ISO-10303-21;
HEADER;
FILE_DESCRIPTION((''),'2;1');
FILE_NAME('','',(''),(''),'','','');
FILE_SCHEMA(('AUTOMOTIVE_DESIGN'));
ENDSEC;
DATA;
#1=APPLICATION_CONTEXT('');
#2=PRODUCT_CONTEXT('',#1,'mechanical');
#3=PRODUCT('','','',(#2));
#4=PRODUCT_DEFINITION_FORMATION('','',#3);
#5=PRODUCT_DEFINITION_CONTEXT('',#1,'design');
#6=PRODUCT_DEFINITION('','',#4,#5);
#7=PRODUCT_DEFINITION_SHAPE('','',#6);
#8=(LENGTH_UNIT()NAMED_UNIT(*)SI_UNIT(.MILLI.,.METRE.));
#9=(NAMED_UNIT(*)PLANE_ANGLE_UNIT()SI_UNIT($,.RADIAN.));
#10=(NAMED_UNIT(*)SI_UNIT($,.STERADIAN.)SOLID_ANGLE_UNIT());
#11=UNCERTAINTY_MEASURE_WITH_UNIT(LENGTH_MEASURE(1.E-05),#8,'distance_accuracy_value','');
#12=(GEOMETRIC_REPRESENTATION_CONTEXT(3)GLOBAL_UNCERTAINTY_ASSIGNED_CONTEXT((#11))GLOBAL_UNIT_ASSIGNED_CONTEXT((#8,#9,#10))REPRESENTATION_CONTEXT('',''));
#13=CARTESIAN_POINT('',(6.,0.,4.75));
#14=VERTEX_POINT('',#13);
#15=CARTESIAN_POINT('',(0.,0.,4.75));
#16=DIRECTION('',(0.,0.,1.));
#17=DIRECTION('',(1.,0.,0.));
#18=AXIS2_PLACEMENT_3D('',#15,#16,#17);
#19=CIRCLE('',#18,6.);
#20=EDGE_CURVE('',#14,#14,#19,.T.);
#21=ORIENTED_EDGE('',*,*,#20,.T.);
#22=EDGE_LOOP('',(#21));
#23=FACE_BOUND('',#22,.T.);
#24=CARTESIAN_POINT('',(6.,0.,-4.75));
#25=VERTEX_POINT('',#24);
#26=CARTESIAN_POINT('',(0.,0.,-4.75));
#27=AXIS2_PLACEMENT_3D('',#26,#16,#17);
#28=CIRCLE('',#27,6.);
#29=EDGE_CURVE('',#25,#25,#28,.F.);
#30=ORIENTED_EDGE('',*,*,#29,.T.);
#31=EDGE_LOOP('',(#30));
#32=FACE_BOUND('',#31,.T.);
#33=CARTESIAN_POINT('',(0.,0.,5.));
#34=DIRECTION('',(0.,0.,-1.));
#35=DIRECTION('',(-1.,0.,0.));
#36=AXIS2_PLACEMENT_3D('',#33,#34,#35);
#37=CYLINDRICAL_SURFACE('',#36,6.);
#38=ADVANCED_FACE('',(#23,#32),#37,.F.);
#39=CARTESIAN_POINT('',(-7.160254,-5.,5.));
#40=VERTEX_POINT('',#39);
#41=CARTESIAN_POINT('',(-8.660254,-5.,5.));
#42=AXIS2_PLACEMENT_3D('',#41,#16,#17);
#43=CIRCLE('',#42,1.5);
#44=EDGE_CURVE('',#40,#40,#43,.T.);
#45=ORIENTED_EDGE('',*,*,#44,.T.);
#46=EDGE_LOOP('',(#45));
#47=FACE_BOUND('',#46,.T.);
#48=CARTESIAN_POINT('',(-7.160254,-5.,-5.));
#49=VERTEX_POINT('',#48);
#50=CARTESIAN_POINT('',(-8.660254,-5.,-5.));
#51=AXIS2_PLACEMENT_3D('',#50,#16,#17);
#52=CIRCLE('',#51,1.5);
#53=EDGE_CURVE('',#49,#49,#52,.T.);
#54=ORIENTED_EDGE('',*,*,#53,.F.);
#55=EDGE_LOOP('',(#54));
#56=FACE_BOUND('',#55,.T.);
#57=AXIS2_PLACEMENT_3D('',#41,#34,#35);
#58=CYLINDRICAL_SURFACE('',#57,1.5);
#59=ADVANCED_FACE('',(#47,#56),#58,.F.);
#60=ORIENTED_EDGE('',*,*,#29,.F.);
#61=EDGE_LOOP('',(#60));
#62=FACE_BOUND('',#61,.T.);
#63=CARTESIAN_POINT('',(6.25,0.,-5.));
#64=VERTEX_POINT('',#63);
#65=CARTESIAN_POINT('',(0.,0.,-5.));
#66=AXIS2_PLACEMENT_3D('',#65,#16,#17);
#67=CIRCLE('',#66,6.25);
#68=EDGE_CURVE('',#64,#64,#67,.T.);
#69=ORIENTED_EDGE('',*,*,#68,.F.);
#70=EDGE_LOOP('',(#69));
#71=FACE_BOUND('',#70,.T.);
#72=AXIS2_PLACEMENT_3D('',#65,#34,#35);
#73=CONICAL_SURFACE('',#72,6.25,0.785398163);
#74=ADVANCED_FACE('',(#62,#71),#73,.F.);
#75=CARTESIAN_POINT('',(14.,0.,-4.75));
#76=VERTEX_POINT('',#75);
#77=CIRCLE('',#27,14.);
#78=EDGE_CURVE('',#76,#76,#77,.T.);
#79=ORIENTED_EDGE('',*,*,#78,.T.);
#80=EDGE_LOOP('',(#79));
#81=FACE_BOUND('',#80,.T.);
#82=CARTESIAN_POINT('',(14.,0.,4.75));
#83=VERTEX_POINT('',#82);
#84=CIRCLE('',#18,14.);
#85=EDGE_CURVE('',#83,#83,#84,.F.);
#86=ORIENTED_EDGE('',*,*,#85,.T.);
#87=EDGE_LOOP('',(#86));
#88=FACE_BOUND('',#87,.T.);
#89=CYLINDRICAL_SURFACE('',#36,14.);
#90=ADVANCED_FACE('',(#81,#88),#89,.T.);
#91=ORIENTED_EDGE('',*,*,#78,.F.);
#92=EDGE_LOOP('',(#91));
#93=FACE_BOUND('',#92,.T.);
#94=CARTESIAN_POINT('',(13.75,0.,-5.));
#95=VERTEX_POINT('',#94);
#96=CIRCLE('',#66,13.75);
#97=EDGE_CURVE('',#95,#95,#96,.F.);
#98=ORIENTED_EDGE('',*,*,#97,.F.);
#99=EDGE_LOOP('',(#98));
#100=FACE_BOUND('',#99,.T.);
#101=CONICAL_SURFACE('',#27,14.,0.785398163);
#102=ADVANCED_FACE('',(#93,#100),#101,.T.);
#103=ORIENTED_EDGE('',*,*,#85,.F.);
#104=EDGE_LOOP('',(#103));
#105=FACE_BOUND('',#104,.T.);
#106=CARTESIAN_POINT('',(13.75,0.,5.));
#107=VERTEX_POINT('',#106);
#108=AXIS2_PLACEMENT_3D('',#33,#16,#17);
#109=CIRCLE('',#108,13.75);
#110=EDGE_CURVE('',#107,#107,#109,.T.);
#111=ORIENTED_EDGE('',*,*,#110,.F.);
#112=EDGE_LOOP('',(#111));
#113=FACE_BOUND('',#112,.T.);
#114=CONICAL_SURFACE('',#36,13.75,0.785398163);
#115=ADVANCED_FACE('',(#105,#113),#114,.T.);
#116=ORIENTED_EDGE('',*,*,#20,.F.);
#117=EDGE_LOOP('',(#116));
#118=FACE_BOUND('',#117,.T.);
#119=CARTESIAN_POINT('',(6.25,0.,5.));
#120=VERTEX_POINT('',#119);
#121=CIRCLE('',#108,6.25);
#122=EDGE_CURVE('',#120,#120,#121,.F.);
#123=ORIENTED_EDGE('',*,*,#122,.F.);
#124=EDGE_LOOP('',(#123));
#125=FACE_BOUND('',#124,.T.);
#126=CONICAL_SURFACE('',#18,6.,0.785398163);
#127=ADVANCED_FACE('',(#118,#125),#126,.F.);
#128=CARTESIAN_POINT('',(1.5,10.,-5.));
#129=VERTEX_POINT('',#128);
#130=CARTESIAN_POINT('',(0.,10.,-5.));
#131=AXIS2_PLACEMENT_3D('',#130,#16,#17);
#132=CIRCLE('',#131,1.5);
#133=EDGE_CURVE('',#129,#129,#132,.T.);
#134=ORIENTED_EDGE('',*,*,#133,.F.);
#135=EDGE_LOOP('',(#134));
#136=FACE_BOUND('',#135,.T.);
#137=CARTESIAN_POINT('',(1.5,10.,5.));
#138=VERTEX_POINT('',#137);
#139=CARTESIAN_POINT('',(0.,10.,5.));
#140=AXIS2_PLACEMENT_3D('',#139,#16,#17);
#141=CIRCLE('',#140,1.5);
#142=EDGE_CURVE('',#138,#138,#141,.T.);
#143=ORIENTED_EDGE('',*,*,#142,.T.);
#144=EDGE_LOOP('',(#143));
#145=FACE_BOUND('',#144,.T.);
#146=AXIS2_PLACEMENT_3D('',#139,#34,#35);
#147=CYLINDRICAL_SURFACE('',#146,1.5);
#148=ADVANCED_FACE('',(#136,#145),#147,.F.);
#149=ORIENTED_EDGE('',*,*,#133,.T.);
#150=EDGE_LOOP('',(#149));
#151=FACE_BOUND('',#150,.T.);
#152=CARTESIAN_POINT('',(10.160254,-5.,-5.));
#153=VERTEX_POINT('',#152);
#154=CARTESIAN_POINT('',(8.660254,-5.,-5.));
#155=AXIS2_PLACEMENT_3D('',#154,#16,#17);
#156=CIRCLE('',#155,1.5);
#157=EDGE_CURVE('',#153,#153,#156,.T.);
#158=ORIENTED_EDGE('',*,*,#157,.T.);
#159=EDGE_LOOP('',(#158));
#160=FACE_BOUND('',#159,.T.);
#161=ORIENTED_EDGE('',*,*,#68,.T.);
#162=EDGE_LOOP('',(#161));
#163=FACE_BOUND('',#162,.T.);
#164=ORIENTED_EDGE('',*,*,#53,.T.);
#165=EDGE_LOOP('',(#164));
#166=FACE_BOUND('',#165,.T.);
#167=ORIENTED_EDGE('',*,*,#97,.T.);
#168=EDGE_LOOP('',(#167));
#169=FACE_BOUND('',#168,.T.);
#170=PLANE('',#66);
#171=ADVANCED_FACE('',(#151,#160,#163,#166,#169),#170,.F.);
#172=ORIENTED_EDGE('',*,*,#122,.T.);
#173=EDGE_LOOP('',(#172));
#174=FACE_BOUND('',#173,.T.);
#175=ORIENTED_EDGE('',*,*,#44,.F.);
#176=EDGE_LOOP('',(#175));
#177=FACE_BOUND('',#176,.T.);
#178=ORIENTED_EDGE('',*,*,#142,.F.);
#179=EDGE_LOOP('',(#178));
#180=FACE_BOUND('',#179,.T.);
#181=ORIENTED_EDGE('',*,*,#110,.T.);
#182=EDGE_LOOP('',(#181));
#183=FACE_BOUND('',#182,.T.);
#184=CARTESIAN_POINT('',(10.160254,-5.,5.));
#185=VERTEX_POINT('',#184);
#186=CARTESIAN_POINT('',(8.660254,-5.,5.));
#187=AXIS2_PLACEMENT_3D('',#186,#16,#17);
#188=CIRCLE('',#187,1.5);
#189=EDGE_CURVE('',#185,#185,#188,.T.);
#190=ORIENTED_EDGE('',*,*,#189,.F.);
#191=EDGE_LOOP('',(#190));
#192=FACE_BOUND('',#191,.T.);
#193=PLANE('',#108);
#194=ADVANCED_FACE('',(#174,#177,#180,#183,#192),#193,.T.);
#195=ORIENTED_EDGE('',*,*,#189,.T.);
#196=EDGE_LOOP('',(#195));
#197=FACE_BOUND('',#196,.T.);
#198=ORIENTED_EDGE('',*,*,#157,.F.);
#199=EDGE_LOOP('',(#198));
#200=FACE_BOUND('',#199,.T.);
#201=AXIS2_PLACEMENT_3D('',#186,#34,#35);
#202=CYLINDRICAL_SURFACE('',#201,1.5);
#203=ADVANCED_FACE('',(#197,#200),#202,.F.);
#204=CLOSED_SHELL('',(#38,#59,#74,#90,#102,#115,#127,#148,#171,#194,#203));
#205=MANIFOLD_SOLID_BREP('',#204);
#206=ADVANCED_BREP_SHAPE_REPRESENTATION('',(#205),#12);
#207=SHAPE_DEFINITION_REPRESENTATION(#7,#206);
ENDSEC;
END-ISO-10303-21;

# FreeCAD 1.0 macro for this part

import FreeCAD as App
import Part
import Sketcher

V = App.Vector
Q = App.Units.Quantity


def edges_at(feature, points):
    """Names of the edges that pass closest to the given points."""
    edges = feature.Shape.Edges
    near = lambda p: min(range(len(edges)), key=lambda i: edges[i].distToShape(Part.Vertex(*p))[0])
    return sorted({f"Edge{near(p) + 1}" for p in points})

doc = App.newDocument("Part")
body = doc.addObject("PartDesign::Body", "Body")

# Sketch on XY plane
sketch1 = body.newObject("Sketcher::SketchObject", "Sketch")
sketch1.AttachmentSupport = (doc.getObject("XY_Plane"), [""])
sketch1.MapMode = "FlatFace"
sketch1.addGeometry([
    Part.Circle(V(0, 0, 0), V(0, 0, 1), 14),  # 0
    Part.Circle(V(-8.660254, -5, 0), V(0, 0, 1), 1.5),  # 1
    Part.Circle(V(8.660254, -5, 0), V(0, 0, 1), 1.5),  # 2
    Part.Circle(V(0, 0, 0), V(0, 0, 1), 6),  # 3
    Part.Circle(V(0, 10, 0), V(0, 0, 1), 1.5),  # 4
], False)
sketch1.addConstraint([
    Sketcher.Constraint("Coincident", 0, 3, -1, 1),
    Sketcher.Constraint("Coincident", 3, 3, -1, 1),
    Sketcher.Constraint("Equal", 1, 2),
    Sketcher.Constraint("Equal", 2, 4),
    Sketcher.Constraint("Symmetric", 1, 3, 2, 3, -2),
    Sketcher.Constraint("PointOnObject", 4, 3, -2),
    Sketcher.Constraint("Diameter", 0, Q("28 mm")),
    Sketcher.Constraint("Diameter", 1, Q("3 mm")),
    Sketcher.Constraint("Diameter", 3, Q("12 mm")),
    Sketcher.Constraint("DistanceY", 1, 3, -1, 1, Q("5 mm")),
    Sketcher.Constraint("DistanceY", -1, 1, 4, 3, Q("10 mm")),
    Sketcher.Constraint("DistanceX", 1, 3, 2, 3, Q("17.320508 mm")),
])
pad1 = body.newObject("PartDesign::Pad", "Pad")
pad1.Profile = sketch1
pad1.Length = 10
pad1.Midplane = True
doc.recompute()

chamfer = body.newObject("PartDesign::Chamfer", "Chamfer")
chamfer.Base = (pad1, edges_at(pad1, [
    (-14, 0, -5),
    (-14, 0, 5),
    (-6, 0, -5),
    (-6, 0, 5),
]))
chamfer.Size = 0.25

doc.recompute()
